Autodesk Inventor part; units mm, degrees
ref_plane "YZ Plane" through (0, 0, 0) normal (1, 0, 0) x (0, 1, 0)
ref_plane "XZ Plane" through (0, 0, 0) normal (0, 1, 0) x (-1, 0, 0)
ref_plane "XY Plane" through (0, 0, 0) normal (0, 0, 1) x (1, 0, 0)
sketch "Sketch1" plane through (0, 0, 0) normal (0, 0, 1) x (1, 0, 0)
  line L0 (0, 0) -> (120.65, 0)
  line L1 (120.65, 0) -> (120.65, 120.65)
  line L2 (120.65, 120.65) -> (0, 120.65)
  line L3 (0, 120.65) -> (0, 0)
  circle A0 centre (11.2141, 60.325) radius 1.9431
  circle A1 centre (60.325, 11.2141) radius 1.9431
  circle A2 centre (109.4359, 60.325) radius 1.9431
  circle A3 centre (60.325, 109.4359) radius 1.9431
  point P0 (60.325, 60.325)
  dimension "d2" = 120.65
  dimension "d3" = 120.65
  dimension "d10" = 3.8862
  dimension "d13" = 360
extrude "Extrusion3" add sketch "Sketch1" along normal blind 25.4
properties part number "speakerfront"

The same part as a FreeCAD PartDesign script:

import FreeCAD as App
import Part
import Sketcher
Q = App.Units.Quantity

doc = App.newDocument("Part")
params = doc.addObject("Spreadsheet::Sheet", "Params")
for row, (alias, value) in enumerate([
    ("sketch1_diameter", "0.153 in"),
    ("sketch1_width", "4.75 in"),
    ("pad1_length", "1 in"),
], start=1):
    params.set(f"A{row}", alias)
    params.set(f"B{row}", "=" + value)
    params.setAlias(f"B{row}", alias)

body = doc.addObject("PartDesign::Body", "Body")

# Sketch on XY plane
sketch1 = body.newObject("Sketcher::SketchObject", "Sketch")
sketch1.AttachmentSupport = (doc.getObject("XY_Plane"), [""])
sketch1.MapMode = "FlatFace"
sketch1.addGeometry([
    Part.LineSegment(App.Vector(0, 120.7, 0), App.Vector(0, 0, 0)),  # 0
    Part.LineSegment(App.Vector(0, 0, 0), App.Vector(120.7, 0, 0)),  # 1
    Part.LineSegment(App.Vector(120.7, 0, 0), App.Vector(120.7, 120.7, 0)),  # 2
    Part.LineSegment(App.Vector(120.7, 120.7, 0), App.Vector(0, 120.7, 0)),  # 3
    Part.Circle(App.Vector(60.3, 11.2, 0), App.Vector(0, 0, 1), 1.9),  # 4
    Part.Circle(App.Vector(11.2, 60.3, 0), App.Vector(0, 0, 1), 1.9),  # 5
    Part.Circle(App.Vector(109.4, 60.3, 0), App.Vector(0, 0, 1), 1.9),  # 6
    Part.Circle(App.Vector(60.3, 109.4, 0), App.Vector(0, 0, 1), 1.9),  # 7
], False)
sketch1.addConstraint([
    Sketcher.Constraint("Coincident", 0, 2, 1, 1),
    Sketcher.Constraint("Coincident", 1, 2, 2, 1),
    Sketcher.Constraint("Coincident", 2, 2, 3, 1),
    Sketcher.Constraint("Coincident", 3, 2, 0, 1),
    Sketcher.Constraint("Vertical", 0),
    Sketcher.Constraint("Horizontal", 1),
    Sketcher.Constraint("Vertical", 2),
    Sketcher.Constraint("Horizontal", 3),
    Sketcher.Constraint("Coincident", 0, 2, -1, 1),
    Sketcher.Constraint("Equal", 4, 5),
    Sketcher.Constraint("Equal", 5, 6),
    Sketcher.Constraint("Equal", 6, 7),
    Sketcher.Constraint("Horizontal", 5, 3, 6, 3),
    Sketcher.Constraint("Vertical", 4, 3, 7, 3),
    Sketcher.Constraint("Equal", 3, 0),
    Sketcher.Constraint("Diameter", 4, Q("0.153 in")),
    Sketcher.Constraint("DistanceX", 1, 1, 1, 2, Q("4.75 in")),
    Sketcher.Constraint("DistanceX", -1, 1, 4, 3, Q("2.375 in")),
    Sketcher.Constraint("DistanceY", -1, 1, 5, 3, Q("2.375 in")),
    Sketcher.Constraint("DistanceX", 5, 3, 6, 3, Q("3.867 in")),
    Sketcher.Constraint("DistanceY", 4, 3, 7, 3, Q("3.867 in")),
    Sketcher.Constraint("DistanceY", -1, 1, 4, 3, Q("0.4415 in")),
    Sketcher.Constraint("DistanceX", -1, 1, 5, 3, Q("0.4415 in")),
])
sketch1.setExpression("Constraints[15]", "Params.sketch1_diameter")
sketch1.setExpression("Constraints[16]", "Params.sketch1_width")
pad1 = body.newObject("PartDesign::Pad", "Pad")
pad1.Profile = sketch1
pad1.setExpression("Length", "Params.pad1_length")

doc.recompute()
